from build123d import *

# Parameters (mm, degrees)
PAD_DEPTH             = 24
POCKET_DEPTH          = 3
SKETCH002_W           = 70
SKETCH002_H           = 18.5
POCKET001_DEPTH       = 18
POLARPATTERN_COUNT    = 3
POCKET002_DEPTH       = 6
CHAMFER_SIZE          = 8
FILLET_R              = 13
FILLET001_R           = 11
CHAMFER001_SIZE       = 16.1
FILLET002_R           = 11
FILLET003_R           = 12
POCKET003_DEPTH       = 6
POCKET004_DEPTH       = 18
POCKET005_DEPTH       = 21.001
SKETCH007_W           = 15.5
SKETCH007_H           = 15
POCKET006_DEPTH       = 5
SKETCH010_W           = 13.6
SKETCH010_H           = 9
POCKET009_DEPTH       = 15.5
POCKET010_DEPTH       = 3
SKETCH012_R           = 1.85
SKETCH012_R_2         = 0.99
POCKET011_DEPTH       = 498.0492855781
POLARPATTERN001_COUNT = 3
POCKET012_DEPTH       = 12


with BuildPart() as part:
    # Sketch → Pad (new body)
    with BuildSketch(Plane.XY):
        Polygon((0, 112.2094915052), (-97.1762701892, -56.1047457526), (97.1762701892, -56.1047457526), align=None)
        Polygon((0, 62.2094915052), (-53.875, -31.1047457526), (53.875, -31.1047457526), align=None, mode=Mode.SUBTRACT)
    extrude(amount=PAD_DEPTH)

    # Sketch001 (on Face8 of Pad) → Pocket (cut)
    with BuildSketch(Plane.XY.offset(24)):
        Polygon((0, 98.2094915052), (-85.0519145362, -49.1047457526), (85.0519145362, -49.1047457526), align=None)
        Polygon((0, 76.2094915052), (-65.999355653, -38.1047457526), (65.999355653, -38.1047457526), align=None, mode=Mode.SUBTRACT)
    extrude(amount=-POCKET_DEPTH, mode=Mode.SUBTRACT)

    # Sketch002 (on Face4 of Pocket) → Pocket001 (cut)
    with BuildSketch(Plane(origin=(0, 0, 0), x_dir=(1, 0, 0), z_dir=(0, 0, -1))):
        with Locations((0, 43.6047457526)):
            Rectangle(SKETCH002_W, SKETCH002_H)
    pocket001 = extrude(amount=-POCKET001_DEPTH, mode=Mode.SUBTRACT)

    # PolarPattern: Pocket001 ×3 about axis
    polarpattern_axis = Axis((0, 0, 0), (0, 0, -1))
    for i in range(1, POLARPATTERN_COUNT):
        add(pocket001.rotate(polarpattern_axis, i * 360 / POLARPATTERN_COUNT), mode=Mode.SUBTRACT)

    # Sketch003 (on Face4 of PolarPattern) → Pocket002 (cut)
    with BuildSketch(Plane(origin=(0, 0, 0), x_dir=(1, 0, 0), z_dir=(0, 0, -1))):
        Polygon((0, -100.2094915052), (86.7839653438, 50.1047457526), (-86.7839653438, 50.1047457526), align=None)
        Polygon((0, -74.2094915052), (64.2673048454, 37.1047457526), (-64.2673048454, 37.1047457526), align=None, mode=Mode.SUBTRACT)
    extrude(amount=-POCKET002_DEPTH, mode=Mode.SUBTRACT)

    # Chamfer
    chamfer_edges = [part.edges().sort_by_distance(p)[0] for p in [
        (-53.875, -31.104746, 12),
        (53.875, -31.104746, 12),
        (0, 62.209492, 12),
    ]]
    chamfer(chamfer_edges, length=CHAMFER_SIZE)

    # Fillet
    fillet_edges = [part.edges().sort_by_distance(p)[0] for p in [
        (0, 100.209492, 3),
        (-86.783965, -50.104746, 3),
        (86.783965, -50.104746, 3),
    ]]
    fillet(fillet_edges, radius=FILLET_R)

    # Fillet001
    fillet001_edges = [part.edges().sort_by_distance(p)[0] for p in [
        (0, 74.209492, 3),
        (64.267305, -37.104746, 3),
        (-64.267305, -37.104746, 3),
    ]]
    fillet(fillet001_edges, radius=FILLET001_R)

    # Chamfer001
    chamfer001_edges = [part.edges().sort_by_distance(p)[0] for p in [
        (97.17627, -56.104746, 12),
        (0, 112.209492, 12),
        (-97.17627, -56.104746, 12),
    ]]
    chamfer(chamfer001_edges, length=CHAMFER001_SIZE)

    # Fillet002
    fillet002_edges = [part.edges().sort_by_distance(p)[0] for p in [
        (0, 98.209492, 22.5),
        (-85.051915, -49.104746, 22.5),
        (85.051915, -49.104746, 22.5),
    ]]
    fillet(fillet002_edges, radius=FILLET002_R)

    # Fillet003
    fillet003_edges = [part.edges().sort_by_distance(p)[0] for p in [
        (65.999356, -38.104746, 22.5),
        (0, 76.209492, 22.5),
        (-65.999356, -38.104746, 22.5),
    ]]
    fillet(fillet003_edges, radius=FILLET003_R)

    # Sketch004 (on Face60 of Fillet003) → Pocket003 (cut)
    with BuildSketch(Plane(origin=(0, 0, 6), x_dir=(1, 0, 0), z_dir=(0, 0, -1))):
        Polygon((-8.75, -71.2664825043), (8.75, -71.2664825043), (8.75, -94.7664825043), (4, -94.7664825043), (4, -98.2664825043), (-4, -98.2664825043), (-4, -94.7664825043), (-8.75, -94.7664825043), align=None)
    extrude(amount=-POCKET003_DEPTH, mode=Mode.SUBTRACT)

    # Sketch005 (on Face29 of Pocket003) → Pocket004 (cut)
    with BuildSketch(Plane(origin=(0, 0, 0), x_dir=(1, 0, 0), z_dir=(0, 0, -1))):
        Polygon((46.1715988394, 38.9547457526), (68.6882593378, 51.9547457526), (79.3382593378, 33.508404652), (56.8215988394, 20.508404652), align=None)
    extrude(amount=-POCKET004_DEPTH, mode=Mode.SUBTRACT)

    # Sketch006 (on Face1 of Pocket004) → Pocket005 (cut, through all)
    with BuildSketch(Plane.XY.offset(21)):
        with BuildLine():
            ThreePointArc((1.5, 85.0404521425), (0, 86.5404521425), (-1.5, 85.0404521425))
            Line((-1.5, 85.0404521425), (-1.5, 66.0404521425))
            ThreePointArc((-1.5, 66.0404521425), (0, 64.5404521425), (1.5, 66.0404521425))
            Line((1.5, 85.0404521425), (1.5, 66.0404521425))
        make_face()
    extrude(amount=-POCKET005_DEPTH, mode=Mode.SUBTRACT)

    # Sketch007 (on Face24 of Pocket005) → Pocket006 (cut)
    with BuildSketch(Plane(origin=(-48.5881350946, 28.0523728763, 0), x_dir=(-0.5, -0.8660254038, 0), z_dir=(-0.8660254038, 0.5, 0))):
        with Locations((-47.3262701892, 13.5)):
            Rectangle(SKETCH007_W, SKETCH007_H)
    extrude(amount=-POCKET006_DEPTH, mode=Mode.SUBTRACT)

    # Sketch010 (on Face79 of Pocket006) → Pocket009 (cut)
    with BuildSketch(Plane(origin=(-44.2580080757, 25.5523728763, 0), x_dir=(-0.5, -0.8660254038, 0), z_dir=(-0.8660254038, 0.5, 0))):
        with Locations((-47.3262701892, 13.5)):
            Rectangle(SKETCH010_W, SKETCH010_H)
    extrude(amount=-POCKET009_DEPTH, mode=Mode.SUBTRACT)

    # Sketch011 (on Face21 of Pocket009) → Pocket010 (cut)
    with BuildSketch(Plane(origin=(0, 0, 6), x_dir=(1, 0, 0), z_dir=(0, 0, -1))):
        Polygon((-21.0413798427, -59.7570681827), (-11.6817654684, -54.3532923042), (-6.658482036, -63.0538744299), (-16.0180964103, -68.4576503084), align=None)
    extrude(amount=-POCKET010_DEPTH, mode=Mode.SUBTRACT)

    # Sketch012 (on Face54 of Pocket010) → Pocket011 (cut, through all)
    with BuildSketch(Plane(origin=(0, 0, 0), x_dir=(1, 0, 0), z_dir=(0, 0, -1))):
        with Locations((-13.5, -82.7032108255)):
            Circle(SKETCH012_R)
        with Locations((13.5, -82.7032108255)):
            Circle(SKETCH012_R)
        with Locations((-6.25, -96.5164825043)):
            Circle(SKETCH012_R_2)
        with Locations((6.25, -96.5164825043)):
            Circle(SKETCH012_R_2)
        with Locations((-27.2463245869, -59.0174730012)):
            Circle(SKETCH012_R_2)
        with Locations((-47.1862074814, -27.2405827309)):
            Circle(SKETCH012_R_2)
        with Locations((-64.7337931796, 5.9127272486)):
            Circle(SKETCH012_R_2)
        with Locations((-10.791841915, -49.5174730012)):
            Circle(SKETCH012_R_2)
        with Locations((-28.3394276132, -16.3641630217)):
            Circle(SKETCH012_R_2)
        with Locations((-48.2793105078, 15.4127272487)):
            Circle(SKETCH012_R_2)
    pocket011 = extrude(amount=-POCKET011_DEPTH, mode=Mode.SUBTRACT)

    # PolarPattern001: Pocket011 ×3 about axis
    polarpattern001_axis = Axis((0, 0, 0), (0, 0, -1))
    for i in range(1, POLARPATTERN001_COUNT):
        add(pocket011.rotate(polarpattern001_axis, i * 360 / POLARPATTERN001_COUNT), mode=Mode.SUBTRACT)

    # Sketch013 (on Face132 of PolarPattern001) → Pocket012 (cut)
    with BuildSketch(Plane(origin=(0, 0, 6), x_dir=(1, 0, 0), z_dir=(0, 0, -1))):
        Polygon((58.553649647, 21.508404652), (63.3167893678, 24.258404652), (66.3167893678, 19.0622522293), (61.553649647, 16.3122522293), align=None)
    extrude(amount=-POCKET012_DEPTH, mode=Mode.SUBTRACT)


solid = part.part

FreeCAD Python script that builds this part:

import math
import FreeCAD as App
import Part
import Sketcher

V = App.Vector
Q = App.Units.Quantity


def edges_at(feature, points):
    """Names of the edges that pass closest to the given points."""
    edges = feature.Shape.Edges
    near = lambda p: min(range(len(edges)), key=lambda i: edges[i].distToShape(Part.Vertex(*p))[0])
    return sorted({f"Edge{near(p) + 1}" for p in points})


def add_polygon(sketch, points):
    """Adds a closed chain of lines whose ends are joined by coincident constraints."""
    first, n = sketch.GeometryCount, len(points)
    for a, b in zip(points, points[1:] + points[:1]):
        sketch.addGeometry(Part.LineSegment(App.Vector(*a, 0), App.Vector(*b, 0)), False)
    for i in range(n):
        sketch.addConstraint(Sketcher.Constraint("Coincident", first + i, 2, first + (i + 1) % n, 1))

doc = App.newDocument("Part")
params = doc.addObject("Spreadsheet::Sheet", "Params")
for row, (alias, value) in enumerate([
    ("sketch1_width", "107.75 mm"),
    ("pad1_length", "24 mm"),
    ("pocket1_length", "3 mm"),
    ("sketch3_width", "70 mm"),
    ("sketch3_height", "18.5 mm"),
    ("pocket2_length", "18 mm"),
    ("pocket3_length", "6 mm"),
    ("chamfer_size", "8 mm"),
    ("fillet_radius", "13 mm"),
    ("fillet2_radius", "11 mm"),
    ("chamfer2_size", "16.1 mm"),
    ("fillet3_radius", "11 mm"),
    ("fillet4_radius", "12 mm"),
    ("sketch5_width", "8 mm"),
    ("sketch5_width2", "17.5 mm"),
    ("sketch5_height", "23.5 mm"),
    ("sketch5_height2", "3.5 mm"),
    ("pocket4_length", "6 mm"),
    ("sketch6_length", "26 mm"),
    ("sketch6_length2", "21.3 mm"),
    ("pocket5_length", "18 mm"),
    ("sketch7_radius", "1.5 mm"),
    ("sketch7_height", "19 mm"),
    ("sketch8_height", "15 mm"),
    ("sketch8_width", "15.5 mm"),
    ("pocket7_length", "5 mm"),
    ("sketch9_height", "9 mm"),
    ("sketch9_width", "13.6 mm"),
    ("pocket8_length", "15.5 mm"),
    ("pocket9_length", "3 mm"),
    ("sketch11_diameter", "3.7 mm"),
    ("sketch11_diameter2", "1.98 mm"),
    ("sketch12_length", "6 mm"),
    ("sketch12_length2", "5.5 mm"),
    ("pocket11_length", "12 mm"),
], start=1):
    params.set(f"A{row}", alias)
    params.set(f"B{row}", "=" + value)
    params.setAlias(f"B{row}", alias)

body = doc.addObject("PartDesign::Body", "Body")

# Sketch on XY plane
sketch1 = body.newObject("Sketcher::SketchObject", "Sketch")
sketch1.AttachmentSupport = (doc.getObject("XY_Plane"), [""])
sketch1.MapMode = "FlatFace"
add_polygon(sketch1, [(0, 112.209492), (-97.17627, -56.104746), (97.17627, -56.104746)])  # lines 0-2
add_polygon(sketch1, [(-53.875, -31.104746), (0, 62.209492), (53.875, -31.104746)])  # lines 3-5
sketch1.addConstraint([
    Sketcher.Constraint("Horizontal", 1),
    Sketcher.Constraint("Horizontal", 5),
    Sketcher.Constraint("PointOnObject", 2, 2, -2),
    Sketcher.Constraint("PointOnObject", 3, 2, -2),
    Sketcher.Constraint("Parallel", 0, 3),
    Sketcher.Constraint("Parallel", 2, 4),
    Sketcher.Constraint("Equal", 0, 2),
    Sketcher.Constraint("Angle", 0, Q("-120 deg")),
    Sketcher.Constraint("DistanceY", 3, 2, 2, 2, Q("50 mm")),
    Sketcher.Constraint("DistanceY", 1, 2, 4, 2, Q("25 mm")),
    Sketcher.Constraint("DistanceX", 5, 2, 5, 1, Q("107.75 mm")),
    Sketcher.Constraint("DistanceY", -1, 1, 2, 2, Q("112.209492 mm")),
])
sketch1.setExpression("Constraints[16]", "Params.sketch1_width")
pad1 = body.newObject("PartDesign::Pad", "Pad")
pad1.Profile = sketch1
pad1.setExpression("Length", "Params.pad1_length")

# Sketch on XY plane
sketch2 = body.newObject("Sketcher::SketchObject", "Sketch001")
sketch2.AttachmentSupport = (doc.getObject("XY_Plane"), [""])
sketch2.MapMode = "FlatFace"
sketch2.AttachmentOffset = App.Placement(V(0, 0, 24), App.Rotation())
add_polygon(sketch2, [(0, 98.209492), (-85.051915, -49.104746), (85.051915, -49.104746)])  # lines 0-2
add_polygon(sketch2, [(-65.999356, -38.104746), (0, 76.209492), (65.999356, -38.104746)])  # lines 3-5
sketch2.addConstraint([
    Sketcher.Constraint("Horizontal", 1),
    Sketcher.Constraint("Horizontal", 5),
    Sketcher.Constraint("PointOnObject", 2, 2, -2),
    Sketcher.Constraint("PointOnObject", 3, 2, -2),
    Sketcher.Constraint("Parallel", 0, 3),
    Sketcher.Constraint("Parallel", 2, 4),
    Sketcher.Constraint("Equal", 0, 2),
    Sketcher.Constraint("Angle", 0, Q("-120 deg")),
    Sketcher.Constraint("DistanceY", 3, 2, 2, 2, Q("22 mm")),
    Sketcher.Constraint("DistanceY", 1, 2, 4, 2, Q("11 mm")),
    Sketcher.Constraint("DistanceX", 1, 1, 1, 2, Q("170.103829 mm")),
    Sketcher.Constraint("DistanceY", -1, 1, 2, 2, Q("98.209492 mm")),
])
pocket1 = body.newObject("PartDesign::Pocket", "Pocket")
pocket1.Profile = sketch2
pocket1.setExpression("Length", "Params.pocket1_length")

# Sketch on XY plane
sketch3 = body.newObject("Sketcher::SketchObject", "Sketch002")
sketch3.AttachmentSupport = (doc.getObject("XY_Plane"), [""])
sketch3.MapMode = "FlatFace"
add_polygon(sketch3, [(-35, -52.854746), (-35, -34.354746), (35, -34.354746), (35, -52.854746)])  # lines 0-3
sketch3.addConstraint([
    Sketcher.Constraint("Vertical", 0),
    Sketcher.Constraint("Horizontal", 1),
    Sketcher.Constraint("Vertical", 2),
    Sketcher.Constraint("Horizontal", 3),
    Sketcher.Constraint("DistanceX", 1, 1, 1, 2, Q("70 mm")),
    Sketcher.Constraint("DistanceY", 0, 1, 0, 2, Q("18.5 mm")),
    Sketcher.Constraint("DistanceX", 0, 2, -1, 1, Q("35 mm")),
    Sketcher.Constraint("DistanceY", 0, 2, -1, 1, Q("34.354746 mm")),
])
sketch3.setExpression("Constraints[8]", "Params.sketch3_width")
sketch3.setExpression("Constraints[9]", "Params.sketch3_height")
pocket2 = body.newObject("PartDesign::Pocket", "Pocket001")
pocket2.Profile = sketch3
pocket2.setExpression("Length", "Params.pocket2_length")
pocket2.Reversed = True
doc.recompute()

polarpattern = body.newObject("PartDesign::PolarPattern", "PolarPattern")
polarpattern.Originals = [pocket2]
polarpattern.Axis = (doc.getObject("Z_Axis"), [""])
polarpattern.Angle = 360
polarpattern.Occurrences = 3
body.Tip = polarpattern

# Sketch on XY plane
sketch4 = body.newObject("Sketcher::SketchObject", "Sketch003")
sketch4.AttachmentSupport = (doc.getObject("XY_Plane"), [""])
sketch4.MapMode = "FlatFace"
add_polygon(sketch4, [(0, 100.209492), (86.783965, -50.104746), (-86.783965, -50.104746)])  # lines 0-2
add_polygon(sketch4, [(64.267305, -37.104746), (0, 74.209492), (-64.267305, -37.104746)])  # lines 3-5
sketch4.addConstraint([
    Sketcher.Constraint("Horizontal", 1),
    Sketcher.Constraint("Horizontal", 5),
    Sketcher.Constraint("PointOnObject", 2, 2, -2),
    Sketcher.Constraint("PointOnObject", 3, 2, -2),
    Sketcher.Constraint("Parallel", 0, 3),
    Sketcher.Constraint("Parallel", 2, 4),
    Sketcher.Constraint("Equal", 0, 2),
    Sketcher.Constraint("Angle", 0, Q("-60 deg")),
    Sketcher.Constraint("DistanceY", 3, 2, 2, 2, Q("26 mm")),
    Sketcher.Constraint("DistanceY", 1, 2, 4, 2, Q("13 mm")),
    Sketcher.Constraint("DistanceX", 1, 2, 1, 1, Q("173.567931 mm")),
    Sketcher.Constraint("DistanceY", -1, 1, 2, 2, Q("100.209492 mm")),
])
pocket3 = body.newObject("PartDesign::Pocket", "Pocket002")
pocket3.Profile = sketch4
pocket3.setExpression("Length", "Params.pocket3_length")
pocket3.Reversed = True
doc.recompute()

chamfer = body.newObject("PartDesign::Chamfer", "Chamfer")
chamfer.Base = (pocket3, edges_at(pocket3, [(-53.875, -31.105, 12), (53.875, -31.105, 12), (0, 62.209, 12)]))
chamfer.setExpression("Size", "Params.chamfer_size")
doc.recompute()

fillet = body.newObject("PartDesign::Fillet", "Fillet")
fillet.Base = (chamfer, edges_at(chamfer, [(0, 100.209, 3), (-86.784, -50.105, 3), (86.784, -50.105, 3)]))
fillet.setExpression("Radius", "Params.fillet_radius")
doc.recompute()

fillet2 = body.newObject("PartDesign::Fillet", "Fillet001")
fillet2.Base = (fillet, edges_at(fillet, [(0, 74.209, 3), (64.267, -37.105, 3), (-64.267, -37.105, 3)]))
fillet2.setExpression("Radius", "Params.fillet2_radius")
doc.recompute()

chamfer2 = body.newObject("PartDesign::Chamfer", "Chamfer001")
chamfer2.Base = (fillet2, edges_at(fillet2, [(97.176, -56.105, 12), (0, 112.209, 12), (-97.176, -56.105, 12)]))
chamfer2.setExpression("Size", "Params.chamfer2_size")
doc.recompute()

fillet3 = body.newObject("PartDesign::Fillet", "Fillet002")
fillet3.Base = (chamfer2, edges_at(chamfer2, [(0, 98.209, 22.5), (-85.052, -49.105, 22.5), (85.052, -49.105, 22.5)]))
fillet3.setExpression("Radius", "Params.fillet3_radius")
doc.recompute()

fillet4 = body.newObject("PartDesign::Fillet", "Fillet003")
fillet4.Base = (fillet3, edges_at(fillet3, [(65.999, -38.105, 22.5), (0, 76.209, 22.5), (-65.999, -38.105, 22.5)]))
fillet4.setExpression("Radius", "Params.fillet4_radius")

# Sketch on XY plane
sketch5 = body.newObject("Sketcher::SketchObject", "Sketch004")
sketch5.AttachmentSupport = (doc.getObject("XY_Plane"), [""])
sketch5.MapMode = "FlatFace"
sketch5.AttachmentOffset = App.Placement(V(0, 0, 6), App.Rotation())
add_polygon(sketch5, [(8.75, 71.266483), (-8.75, 71.266483), (-8.75, 94.766483), (-4, 94.766483), (-4, 98.266483), (4, 98.266483), (4, 94.766483), (8.75, 94.766483)])  # lines 0-7
sketch5.addConstraint([
    Sketcher.Constraint("Horizontal", 0),
    Sketcher.Constraint("Vertical", 1),
    Sketcher.Constraint("Horizontal", 2),
    Sketcher.Constraint("Vertical", 3),
    Sketcher.Constraint("Horizontal", 4),
    Sketcher.Constraint("Vertical", 5),
    Sketcher.Constraint("Horizontal", 6),
    Sketcher.Constraint("Vertical", 7),
    Sketcher.Constraint("Symmetric", 2, 2, 5, 2, -2),
    Sketcher.Constraint("Equal", 2, 6),
    Sketcher.Constraint("DistanceX", 4, 1, 4, 2, Q("8 mm")),
    Sketcher.Constraint("DistanceX", 0, 2, 0, 1, Q("17.5 mm")),
    Sketcher.Constraint("DistanceY", 1, 1, 1, 2, Q("23.5 mm")),
    Sketcher.Constraint("DistanceY", 3, 1, 3, 2, Q("3.5 mm")),
    Sketcher.Constraint("DistanceY", -1, 1, 0, 2, Q("71.266483 mm")),
])
sketch5.setExpression("Constraints[18]", "Params.sketch5_width")
sketch5.setExpression("Constraints[19]", "Params.sketch5_width2")
sketch5.setExpression("Constraints[20]", "Params.sketch5_height")
sketch5.setExpression("Constraints[21]", "Params.sketch5_height2")
pocket4 = body.newObject("PartDesign::Pocket", "Pocket003")
pocket4.Profile = sketch5
pocket4.setExpression("Length", "Params.pocket4_length")
pocket4.Reversed = True

# Sketch on XY plane
sketch6 = body.newObject("Sketcher::SketchObject", "Sketch005")
sketch6.AttachmentSupport = (doc.getObject("XY_Plane"), [""])
sketch6.MapMode = "FlatFace"
add_polygon(sketch6, [(68.688259, -51.954746), (46.171599, -38.954746), (56.821599, -20.508405), (79.338259, -33.508405)])  # lines 0-3
sketch6.addConstraint([
    Sketcher.Constraint("Perpendicular", 0, 1),
    Sketcher.Constraint("Perpendicular", 1, 2),
    Sketcher.Constraint("Perpendicular", 2, 3),
    Sketcher.Constraint("Angle", 0, Q("150 deg")),
    Sketcher.Constraint("Distance", 0, Q("26 mm")),
    Sketcher.Constraint("Distance", 1, Q("21.3 mm")),
    Sketcher.Constraint("DistanceX", -1, 1, 0, 2, Q("46.171599 mm")),
    Sketcher.Constraint("DistanceY", 0, 2, -1, 1, Q("38.954746 mm")),
])
sketch6.setExpression("Constraints[8]", "Params.sketch6_length")
sketch6.setExpression("Constraints[9]", "Params.sketch6_length2")
pocket5 = body.newObject("PartDesign::Pocket", "Pocket004")
pocket5.Profile = sketch6
pocket5.setExpression("Length", "Params.pocket5_length")
pocket5.Reversed = True

# Sketch on XY plane
sketch7 = body.newObject("Sketcher::SketchObject", "Sketch006")
sketch7.AttachmentSupport = (doc.getObject("XY_Plane"), [""])
sketch7.MapMode = "FlatFace"
sketch7.AttachmentOffset = App.Placement(V(0, 0, 21), App.Rotation())
sketch7.addGeometry([
    Part.ArcOfCircle(Part.Circle(V(0, 85.040452, 0), V(0, 0, 1), 1.5), math.radians(0), math.radians(180)),
    Part.LineSegment(V(-1.5, 85.040452, 0), V(-1.5, 66.040452, 0)),
    Part.ArcOfCircle(Part.Circle(V(0, 66.040452, 0), V(0, 0, 1), 1.5), math.radians(180), math.radians(360)),
    Part.LineSegment(V(1.5, 66.040452, 0), V(1.5, 85.040452, 0)),
], False)
sketch7.addConstraint([
    Sketcher.Constraint("Tangent", 0, 2, 1, 1),
    Sketcher.Constraint("Tangent", 1, 2, 2, 1),
    Sketcher.Constraint("Tangent", 2, 2, 3, 1),
    Sketcher.Constraint("Tangent", 3, 2, 0, 1),
    Sketcher.Constraint("Vertical", 1),
    Sketcher.Constraint("Vertical", 3),
    Sketcher.Constraint("PointOnObject", 0, 3, -2),
    Sketcher.Constraint("Radius", 0, Q("1.5 mm")),
    Sketcher.Constraint("DistanceY", 1, 2, 1, 1, Q("19 mm")),
    Sketcher.Constraint("DistanceY", -1, 1, 0, 3, Q("85.040452 mm")),
])
sketch7.setExpression("Constraints[7]", "Params.sketch7_radius")
sketch7.setExpression("Constraints[8]", "Params.sketch7_height")
pocket6 = body.newObject("PartDesign::Pocket", "Pocket005")
pocket6.Profile = sketch7
pocket6.Type = "ThroughAll"

# Sketch on an angled plane
sketch8 = body.newObject("Sketcher::SketchObject", "Sketch007")
sketch8.Placement = App.Placement(V(-48.588135, 28.052373, 0), App.Rotation(V(-0.5, -0.866025404, 0), V(0, 0, 1), V(-0.866025404, 0.5, 0), "ZXY"))
add_polygon(sketch8, [(-55.07627, 21), (-55.07627, 6), (-39.57627, 6), (-39.57627, 21)])  # lines 0-3
sketch8.addConstraint([
    Sketcher.Constraint("Vertical", 0),
    Sketcher.Constraint("Horizontal", 1),
    Sketcher.Constraint("Vertical", 2),
    Sketcher.Constraint("Horizontal", 3),
    Sketcher.Constraint("DistanceY", 0, 2, 0, 1, Q("15 mm")),
    Sketcher.Constraint("DistanceX", 1, 1, 1, 2, Q("15.5 mm")),
    Sketcher.Constraint("DistanceY", -1, 1, 0, 2, Q("6 mm")),
    Sketcher.Constraint("DistanceX", 0, 2, -1, 1, Q("55.07627 mm")),
])
sketch8.setExpression("Constraints[8]", "Params.sketch8_height")
sketch8.setExpression("Constraints[9]", "Params.sketch8_width")
pocket7 = body.newObject("PartDesign::Pocket", "Pocket006")
pocket7.Profile = sketch8
pocket7.setExpression("Length", "Params.pocket7_length")

# Sketch on an angled plane
sketch9 = body.newObject("Sketcher::SketchObject", "Sketch008")
sketch9.Placement = App.Placement(V(-44.258008, 25.552373, 0), App.Rotation(V(-0.5, -0.866025404, 0), V(0, 0, 1), V(-0.866025404, 0.5, 0), "ZXY"))
add_polygon(sketch9, [(-54.12627, 18), (-54.12627, 9), (-40.52627, 9), (-40.52627, 18)])  # lines 0-3
sketch9.addConstraint([
    Sketcher.Constraint("Vertical", 0),
    Sketcher.Constraint("Horizontal", 1),
    Sketcher.Constraint("Vertical", 2),
    Sketcher.Constraint("Horizontal", 3),
    Sketcher.Constraint("DistanceY", 0, 2, 0, 1, Q("9 mm")),
    Sketcher.Constraint("DistanceX", 1, 1, 1, 2, Q("13.6 mm")),
    Sketcher.Constraint("DistanceY", -1, 1, 0, 2, Q("9 mm")),
    Sketcher.Constraint("DistanceX", 0, 2, -1, 1, Q("54.12627 mm")),
])
sketch9.setExpression("Constraints[8]", "Params.sketch9_height")
sketch9.setExpression("Constraints[9]", "Params.sketch9_width")
pocket8 = body.newObject("PartDesign::Pocket", "Pocket007")
pocket8.Profile = sketch9
pocket8.setExpression("Length", "Params.pocket8_length")

# Sketch on XY plane
sketch10 = body.newObject("Sketcher::SketchObject", "Sketch009")
sketch10.AttachmentSupport = (doc.getObject("XY_Plane"), [""])
sketch10.MapMode = "FlatFace"
sketch10.AttachmentOffset = App.Placement(V(0, 0, 6), App.Rotation())
add_polygon(sketch10, [(-11.681765, 54.353292), (-21.04138, 59.757068), (-16.018096, 68.45765), (-6.658482, 63.053874)])  # lines 0-3
sketch10.addConstraint([
    Sketcher.Constraint("Perpendicular", 0, 1),
    Sketcher.Constraint("Perpendicular", 1, 2),
    Sketcher.Constraint("Perpendicular", 2, 3),
    Sketcher.Constraint("Angle", 0, Q("150 deg")),
    Sketcher.Constraint("Distance", 0, Q("10.807552 mm")),
    Sketcher.Constraint("DistanceX", 0, 2, -1, 1, Q("21.04138 mm")),
    Sketcher.Constraint("DistanceY", -1, 1, 0, 2, Q("59.757068 mm")),
    Sketcher.Constraint("DistanceY", -1, 1, 1, 2, Q("68.45765 mm")),
])
pocket9 = body.newObject("PartDesign::Pocket", "Pocket008")
pocket9.Profile = sketch10
pocket9.setExpression("Length", "Params.pocket9_length")
pocket9.Reversed = True

# Sketch on XY plane
sketch11 = body.newObject("Sketcher::SketchObject", "Sketch010")
sketch11.AttachmentSupport = (doc.getObject("XY_Plane"), [""])
sketch11.MapMode = "FlatFace"
sketch11.addGeometry([
    Part.Circle(V(-13.5, 82.703211, 0), V(0, 0, 1), 1.85),  # 0
    Part.Circle(V(13.5, 82.703211, 0), V(0, 0, 1), 1.85),  # 1
    Part.Circle(V(-6.25, 96.516483, 0), V(0, 0, 1), 0.99),  # 2
    Part.Circle(V(6.25, 96.516483, 0), V(0, 0, 1), 0.99),  # 3
    Part.Circle(V(-27.246325, 59.017473, 0), V(0, 0, 1), 0.99),  # 4
    Part.Circle(V(-47.186207, 27.240583, 0), V(0, 0, 1), 0.99),  # 5
    Part.Circle(V(-64.733793, -5.912727, 0), V(0, 0, 1), 0.99),  # 6
    Part.Circle(V(-10.791842, 49.517473, 0), V(0, 0, 1), 0.99),  # 7
    Part.Circle(V(-28.339428, 16.364163, 0), V(0, 0, 1), 0.99),  # 8
    Part.Circle(V(-48.279311, -15.412727, 0), V(0, 0, 1), 0.99),  # 9
], False)
sketch11.addConstraint([
    Sketcher.Constraint("Equal", 0, 1),
    Sketcher.Constraint("Equal", 2, 3),
    Sketcher.Constraint("Equal", 3, 4),
    Sketcher.Constraint("Equal", 4, 5),
    Sketcher.Constraint("Equal", 5, 6),
    Sketcher.Constraint("Equal", 6, 7),
    Sketcher.Constraint("Equal", 7, 8),
    Sketcher.Constraint("Equal", 8, 9),
    Sketcher.Constraint("Symmetric", 0, 3, 1, 3, -2),
    Sketcher.Constraint("Symmetric", 2, 3, 3, 3, -2),
    Sketcher.Constraint("Diameter", 0, Q("3.7 mm")),
    Sketcher.Constraint("Diameter", 2, Q("1.98 mm")),
    Sketcher.Constraint("DistanceX", 0, 3, 1, 3, Q("27 mm")),
    Sketcher.Constraint("DistanceX", 2, 3, 3, 3, Q("12.5 mm")),
    Sketcher.Constraint("DistanceY", 7, 3, 4, 3, Q("9.5 mm")),
    Sketcher.Constraint("DistanceY", 9, 3, 6, 3, Q("9.5 mm")),
    Sketcher.Constraint("DistanceY", 5, 3, 2, 3, Q("69.2759 mm")),
    Sketcher.Constraint("DistanceY", 6, 3, 4, 3, Q("64.9302 mm")),
    Sketcher.Constraint("DistanceY", -1, 1, 0, 3, Q("82.703211 mm")),
    Sketcher.Constraint("DistanceX", 7, 3, -1, 1, Q("10.791842 mm")),
    Sketcher.Constraint("DistanceX", 9, 3, -1, 1, Q("48.279311 mm")),
    Sketcher.Constraint("DistanceY", 0, 3, 2, 3, Q("13.813272 mm")),
    Sketcher.Constraint("DistanceY", 4, 3, 2, 3, Q("37.49901 mm")),
    Sketcher.Constraint("DistanceX", 6, 3, 4, 3, Q("37.487469 mm")),
    Sketcher.Constraint("DistanceX", 5, 3, 8, 3, Q("18.84678 mm")),
    Sketcher.Constraint("DistanceY", 8, 3, 5, 3, Q("10.87642 mm")),
    Sketcher.Constraint("DistanceX", 4, 3, -1, 1, Q("27.246325 mm")),
    Sketcher.Constraint("DistanceX", 5, 3, -1, 1, Q("47.186207 mm")),
])
sketch11.setExpression("Constraints[10]", "Params.sketch11_diameter")
sketch11.setExpression("Constraints[11]", "Params.sketch11_diameter2")
pocket10 = body.newObject("PartDesign::Pocket", "Pocket009")
pocket10.Profile = sketch11
pocket10.Type = "ThroughAll"
pocket10.Reversed = True
doc.recompute()

polarpattern2 = body.newObject("PartDesign::PolarPattern", "PolarPattern001")
polarpattern2.Originals = [pocket10]
polarpattern2.Axis = (doc.getObject("Z_Axis"), [""])
polarpattern2.Angle = 360
polarpattern2.Occurrences = 3
body.Tip = polarpattern2

# Sketch on XY plane
sketch12 = body.newObject("Sketcher::SketchObject", "Sketch011")
sketch12.AttachmentSupport = (doc.getObject("XY_Plane"), [""])
sketch12.MapMode = "FlatFace"
sketch12.AttachmentOffset = App.Placement(V(0, 0, 6), App.Rotation())
add_polygon(sketch12, [(63.316789, -24.258405), (58.55365, -21.508405), (61.55365, -16.312252), (66.316789, -19.062252)])  # lines 0-3
sketch12.addConstraint([
    Sketcher.Constraint("Perpendicular", 0, 1),
    Sketcher.Constraint("Perpendicular", 1, 2),
    Sketcher.Constraint("Perpendicular", 2, 3),
    Sketcher.Constraint("Angle", 0, Q("150 deg")),
    Sketcher.Constraint("Distance", 1, Q("6 mm")),
    Sketcher.Constraint("Distance", 0, Q("5.5 mm")),
    Sketcher.Constraint("DistanceX", -1, 1, 0, 2, Q("58.55365 mm")),
    Sketcher.Constraint("DistanceY", 0, 2, -1, 1, Q("21.508405 mm")),
])
sketch12.setExpression("Constraints[8]", "Params.sketch12_length")
sketch12.setExpression("Constraints[9]", "Params.sketch12_length2")
pocket11 = body.newObject("PartDesign::Pocket", "Pocket010")
pocket11.Profile = sketch12
pocket11.setExpression("Length", "Params.pocket11_length")
pocket11.Reversed = True

doc.recompute()
